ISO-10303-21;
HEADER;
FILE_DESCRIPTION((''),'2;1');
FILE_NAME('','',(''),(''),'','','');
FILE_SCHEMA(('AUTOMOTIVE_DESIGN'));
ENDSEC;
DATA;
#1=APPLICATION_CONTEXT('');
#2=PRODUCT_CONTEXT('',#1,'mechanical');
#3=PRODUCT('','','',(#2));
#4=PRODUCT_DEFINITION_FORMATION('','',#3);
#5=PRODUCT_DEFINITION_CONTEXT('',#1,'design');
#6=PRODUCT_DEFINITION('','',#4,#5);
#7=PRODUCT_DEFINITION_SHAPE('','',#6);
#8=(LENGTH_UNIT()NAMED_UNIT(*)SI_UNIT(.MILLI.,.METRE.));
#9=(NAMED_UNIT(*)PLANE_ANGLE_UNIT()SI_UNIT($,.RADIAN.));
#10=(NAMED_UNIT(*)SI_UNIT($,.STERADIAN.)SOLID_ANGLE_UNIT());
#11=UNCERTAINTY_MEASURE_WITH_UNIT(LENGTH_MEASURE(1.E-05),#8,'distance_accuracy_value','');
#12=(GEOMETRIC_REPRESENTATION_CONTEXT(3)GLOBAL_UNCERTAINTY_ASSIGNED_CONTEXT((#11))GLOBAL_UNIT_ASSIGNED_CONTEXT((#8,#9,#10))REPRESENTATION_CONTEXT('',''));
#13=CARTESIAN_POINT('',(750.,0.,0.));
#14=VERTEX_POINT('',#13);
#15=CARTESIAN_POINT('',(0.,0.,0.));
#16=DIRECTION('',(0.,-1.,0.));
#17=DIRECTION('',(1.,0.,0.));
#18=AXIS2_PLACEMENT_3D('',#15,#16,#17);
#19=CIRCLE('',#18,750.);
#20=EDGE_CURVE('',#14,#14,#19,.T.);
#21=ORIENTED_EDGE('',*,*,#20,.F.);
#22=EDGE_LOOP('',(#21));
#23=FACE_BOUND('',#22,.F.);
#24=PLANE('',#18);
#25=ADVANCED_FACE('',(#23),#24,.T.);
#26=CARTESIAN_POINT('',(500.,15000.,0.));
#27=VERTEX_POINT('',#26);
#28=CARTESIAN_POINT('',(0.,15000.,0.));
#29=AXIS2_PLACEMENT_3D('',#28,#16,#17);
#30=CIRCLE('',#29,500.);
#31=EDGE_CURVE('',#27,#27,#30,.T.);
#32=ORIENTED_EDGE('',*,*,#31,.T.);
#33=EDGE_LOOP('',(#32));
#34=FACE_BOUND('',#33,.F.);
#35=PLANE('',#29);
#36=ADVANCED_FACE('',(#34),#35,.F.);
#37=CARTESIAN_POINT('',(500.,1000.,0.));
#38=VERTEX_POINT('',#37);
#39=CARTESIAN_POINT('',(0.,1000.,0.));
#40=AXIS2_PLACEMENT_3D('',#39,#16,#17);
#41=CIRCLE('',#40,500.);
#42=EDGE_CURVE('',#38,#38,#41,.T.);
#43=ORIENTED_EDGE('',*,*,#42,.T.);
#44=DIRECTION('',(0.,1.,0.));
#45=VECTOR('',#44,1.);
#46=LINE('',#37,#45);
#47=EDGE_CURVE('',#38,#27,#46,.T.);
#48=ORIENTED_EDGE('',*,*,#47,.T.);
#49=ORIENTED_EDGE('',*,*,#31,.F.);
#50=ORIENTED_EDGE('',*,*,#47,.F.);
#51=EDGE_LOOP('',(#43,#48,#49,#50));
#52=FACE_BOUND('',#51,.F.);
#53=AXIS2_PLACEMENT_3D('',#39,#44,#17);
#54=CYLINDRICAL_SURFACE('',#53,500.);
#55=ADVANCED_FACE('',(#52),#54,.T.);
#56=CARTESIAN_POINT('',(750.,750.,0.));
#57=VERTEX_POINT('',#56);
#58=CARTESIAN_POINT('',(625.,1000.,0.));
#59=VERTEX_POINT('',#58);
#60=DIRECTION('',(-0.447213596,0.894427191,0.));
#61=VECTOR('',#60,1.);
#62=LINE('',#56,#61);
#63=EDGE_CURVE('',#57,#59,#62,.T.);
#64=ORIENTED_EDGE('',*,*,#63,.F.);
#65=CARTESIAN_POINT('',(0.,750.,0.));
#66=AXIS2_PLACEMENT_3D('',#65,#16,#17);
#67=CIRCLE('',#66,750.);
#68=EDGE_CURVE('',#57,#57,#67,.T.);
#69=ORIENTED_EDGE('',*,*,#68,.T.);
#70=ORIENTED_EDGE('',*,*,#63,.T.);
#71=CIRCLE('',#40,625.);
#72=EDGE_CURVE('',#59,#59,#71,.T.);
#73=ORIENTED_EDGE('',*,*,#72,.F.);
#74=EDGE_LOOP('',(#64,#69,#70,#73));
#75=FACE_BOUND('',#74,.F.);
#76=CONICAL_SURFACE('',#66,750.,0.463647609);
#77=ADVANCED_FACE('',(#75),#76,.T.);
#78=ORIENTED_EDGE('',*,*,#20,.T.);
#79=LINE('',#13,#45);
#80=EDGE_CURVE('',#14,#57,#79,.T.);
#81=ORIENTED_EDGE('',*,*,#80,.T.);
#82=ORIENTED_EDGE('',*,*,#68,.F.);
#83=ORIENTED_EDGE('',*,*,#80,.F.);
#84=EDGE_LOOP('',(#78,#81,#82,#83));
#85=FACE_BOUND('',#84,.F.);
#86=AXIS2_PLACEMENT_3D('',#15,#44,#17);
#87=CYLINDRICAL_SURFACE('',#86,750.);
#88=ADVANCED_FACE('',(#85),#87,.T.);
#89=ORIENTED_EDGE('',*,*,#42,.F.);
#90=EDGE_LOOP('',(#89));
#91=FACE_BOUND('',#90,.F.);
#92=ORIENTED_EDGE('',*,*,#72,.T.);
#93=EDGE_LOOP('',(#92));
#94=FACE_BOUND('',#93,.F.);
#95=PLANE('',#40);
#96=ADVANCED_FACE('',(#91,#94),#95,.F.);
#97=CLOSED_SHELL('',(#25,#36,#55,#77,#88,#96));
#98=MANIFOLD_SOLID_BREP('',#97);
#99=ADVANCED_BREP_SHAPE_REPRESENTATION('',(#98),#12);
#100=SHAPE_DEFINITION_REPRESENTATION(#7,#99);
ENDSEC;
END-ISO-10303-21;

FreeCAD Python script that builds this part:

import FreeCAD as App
import Part
import Sketcher
Q = App.Units.Quantity

doc = App.newDocument("Part")
body = doc.addObject("PartDesign::Body", "Body")

# Sketch on XY plane
sketch1 = body.newObject("Sketcher::SketchObject", "Sketch")
sketch1.AttachmentSupport = (doc.getObject("XY_Plane"), [""])
sketch1.MapMode = "FlatFace"
sketch1.addGeometry(Part.LineSegment(App.Vector(0, 15000, 0), App.Vector(0, 0, 0)), False)
sketch1.addGeometry(Part.LineSegment(App.Vector(0, 0, 0), App.Vector(750, 0, 0)), False)
sketch1.addGeometry(Part.LineSegment(App.Vector(750, 0, 0), App.Vector(750, 750, 0)), False)
sketch1.addGeometry(Part.LineSegment(App.Vector(750, 750, 0), App.Vector(625, 1000, 0)), False)
sketch1.addGeometry(Part.LineSegment(App.Vector(625, 1000, 0), App.Vector(500, 1000, 0)), False)
sketch1.addGeometry(Part.LineSegment(App.Vector(500, 1000, 0), App.Vector(500, 15000, 0)), False)
sketch1.addGeometry(Part.LineSegment(App.Vector(500, 15000, 0), App.Vector(0, 15000, 0)), False)
sketch1.addConstraint(Sketcher.Constraint("Coincident", 0, 2, 1, 1))
sketch1.addConstraint(Sketcher.Constraint("Coincident", 1, 2, 2, 1))
sketch1.addConstraint(Sketcher.Constraint("Coincident", 2, 2, 3, 1))
sketch1.addConstraint(Sketcher.Constraint("Coincident", 3, 2, 4, 1))
sketch1.addConstraint(Sketcher.Constraint("Coincident", 4, 2, 5, 1))
sketch1.addConstraint(Sketcher.Constraint("Coincident", 5, 2, 6, 1))
sketch1.addConstraint(Sketcher.Constraint("Coincident", 6, 2, 0, 1))
sketch1.addConstraint(Sketcher.Constraint("Vertical", 0))
sketch1.addConstraint(Sketcher.Constraint("Horizontal", 1))
sketch1.addConstraint(Sketcher.Constraint("Vertical", 2))
sketch1.addConstraint(Sketcher.Constraint("Horizontal", 4))
sketch1.addConstraint(Sketcher.Constraint("Vertical", 5))
sketch1.addConstraint(Sketcher.Constraint("Horizontal", 6))
sketch1.addConstraint(Sketcher.Constraint("Coincident", 0, 2, -1, 1))
sketch1.addConstraint(Sketcher.Constraint("Equal", 1, 2))
sketch1.addConstraint(Sketcher.Constraint("DistanceX", 1, 1, 1, 2, Q("750 mm")))
sketch1.addConstraint(Sketcher.Constraint("DistanceX", 4, 2, 4, 1, Q("125 mm")))
sketch1.addConstraint(Sketcher.Constraint("DistanceX", 6, 2, 6, 1, Q("500 mm")))
sketch1.addConstraint(Sketcher.Constraint("DistanceY", 0, 2, 0, 1, Q("15000 mm")))
sketch1.addConstraint(Sketcher.Constraint("DistanceY", 2, 2, 3, 2, Q("250 mm")))
revolution = body.newObject("PartDesign::Revolution", "Revolution")
revolution.Profile = sketch1
revolution.ReferenceAxis = (sketch1, ["V_Axis"])
revolution.Angle = 360

doc.recompute()
